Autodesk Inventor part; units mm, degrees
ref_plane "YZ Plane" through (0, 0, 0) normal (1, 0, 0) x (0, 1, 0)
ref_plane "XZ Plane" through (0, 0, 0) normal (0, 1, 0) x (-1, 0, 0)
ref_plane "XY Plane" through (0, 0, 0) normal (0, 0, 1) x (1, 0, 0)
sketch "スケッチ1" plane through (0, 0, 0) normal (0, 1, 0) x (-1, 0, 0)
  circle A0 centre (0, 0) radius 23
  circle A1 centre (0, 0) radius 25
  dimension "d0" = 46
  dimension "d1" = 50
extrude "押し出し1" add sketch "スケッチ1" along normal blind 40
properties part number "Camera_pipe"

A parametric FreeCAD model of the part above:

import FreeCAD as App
import Part
import Sketcher

V = App.Vector

doc = App.newDocument("Part")
body = doc.addObject("PartDesign::Body", "Body")

sketch1 = body.newObject("Sketcher::SketchObject", "Sketch")
sketch1.AttachmentSupport = (doc.getObject("XZ_Plane"), [""])
sketch1.MapMode = "FlatFace"
sketch1.addGeometry([
    Part.Circle(V(0, 0, 0), V(0, 0, 1), 25),
    Part.Circle(V(0, 0, 0), V(0, 0, 1), 23),
], False)
sketch1.addConstraint([
    Sketcher.Constraint("Coincident", 0, 3, -1, 1),
    Sketcher.Constraint("Coincident", 1, 3, -1, 1),
    Sketcher.Constraint("Diameter", 0, 50.0),
    Sketcher.Constraint("Diameter", 1, 46.0),
])
pad1 = body.newObject("PartDesign::Pad", "Pad")
pad1.Profile = sketch1
pad1.Length = 40
pad1.Reversed = True

doc.recompute()
